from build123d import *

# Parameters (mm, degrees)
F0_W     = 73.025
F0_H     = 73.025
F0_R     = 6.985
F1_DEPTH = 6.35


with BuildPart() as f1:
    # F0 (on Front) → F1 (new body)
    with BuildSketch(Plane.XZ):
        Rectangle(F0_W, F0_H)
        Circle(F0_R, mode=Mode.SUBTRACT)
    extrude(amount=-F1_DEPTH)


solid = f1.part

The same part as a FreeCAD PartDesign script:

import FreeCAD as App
import Part
import Sketcher
from FreeCAD import Vector
Q = App.Units.Quantity

doc = App.newDocument("Part")
body = doc.addObject("PartDesign::Body", "Body")

sketch1 = body.newObject("Sketcher::SketchObject", "Sketch")
sketch1.AttachmentSupport = (doc.getObject("XZ_Plane"), [""])
sketch1.MapMode = "FlatFace"
sketch1.addGeometry([
    Part.LineSegment(Vector(-37, 37, 0), Vector(-37, -37, 0)),
    Part.LineSegment(Vector(-37, -37, 0), Vector(37, -37, 0)),
    Part.LineSegment(Vector(37, -37, 0), Vector(37, 37, 0)),
    Part.LineSegment(Vector(37, 37, 0), Vector(-37, 37, 0)),
    Part.Circle(Vector(0, 0, 0), Vector(0, 0, 1), 7),
], False)
sketch1.addConstraint([
    Sketcher.Constraint("Coincident", 0, 2, 1, 1),
    Sketcher.Constraint("Coincident", 1, 2, 2, 1),
    Sketcher.Constraint("Coincident", 2, 2, 3, 1),
    Sketcher.Constraint("Coincident", 3, 2, 0, 1),
    Sketcher.Constraint("Vertical", 0),
    Sketcher.Constraint("Horizontal", 1),
    Sketcher.Constraint("Vertical", 2),
    Sketcher.Constraint("Horizontal", 3),
    Sketcher.Constraint("Coincident", 4, 3, -1, 1),
    Sketcher.Constraint("Symmetric", 0, 2, 2, 2, -1, 1),
    Sketcher.Constraint("Equal", 3, 0),
    Sketcher.Constraint("Diameter", 4, Q("0.55 in")),
    Sketcher.Constraint("DistanceX", 1, 1, 1, 2, Q("2.875 in")),
])
pad1 = body.newObject("PartDesign::Pad", "Pad")
pad1.Profile = sketch1
pad1.Length = Q("0.25 in")
pad1.Reversed = True

doc.recompute()
